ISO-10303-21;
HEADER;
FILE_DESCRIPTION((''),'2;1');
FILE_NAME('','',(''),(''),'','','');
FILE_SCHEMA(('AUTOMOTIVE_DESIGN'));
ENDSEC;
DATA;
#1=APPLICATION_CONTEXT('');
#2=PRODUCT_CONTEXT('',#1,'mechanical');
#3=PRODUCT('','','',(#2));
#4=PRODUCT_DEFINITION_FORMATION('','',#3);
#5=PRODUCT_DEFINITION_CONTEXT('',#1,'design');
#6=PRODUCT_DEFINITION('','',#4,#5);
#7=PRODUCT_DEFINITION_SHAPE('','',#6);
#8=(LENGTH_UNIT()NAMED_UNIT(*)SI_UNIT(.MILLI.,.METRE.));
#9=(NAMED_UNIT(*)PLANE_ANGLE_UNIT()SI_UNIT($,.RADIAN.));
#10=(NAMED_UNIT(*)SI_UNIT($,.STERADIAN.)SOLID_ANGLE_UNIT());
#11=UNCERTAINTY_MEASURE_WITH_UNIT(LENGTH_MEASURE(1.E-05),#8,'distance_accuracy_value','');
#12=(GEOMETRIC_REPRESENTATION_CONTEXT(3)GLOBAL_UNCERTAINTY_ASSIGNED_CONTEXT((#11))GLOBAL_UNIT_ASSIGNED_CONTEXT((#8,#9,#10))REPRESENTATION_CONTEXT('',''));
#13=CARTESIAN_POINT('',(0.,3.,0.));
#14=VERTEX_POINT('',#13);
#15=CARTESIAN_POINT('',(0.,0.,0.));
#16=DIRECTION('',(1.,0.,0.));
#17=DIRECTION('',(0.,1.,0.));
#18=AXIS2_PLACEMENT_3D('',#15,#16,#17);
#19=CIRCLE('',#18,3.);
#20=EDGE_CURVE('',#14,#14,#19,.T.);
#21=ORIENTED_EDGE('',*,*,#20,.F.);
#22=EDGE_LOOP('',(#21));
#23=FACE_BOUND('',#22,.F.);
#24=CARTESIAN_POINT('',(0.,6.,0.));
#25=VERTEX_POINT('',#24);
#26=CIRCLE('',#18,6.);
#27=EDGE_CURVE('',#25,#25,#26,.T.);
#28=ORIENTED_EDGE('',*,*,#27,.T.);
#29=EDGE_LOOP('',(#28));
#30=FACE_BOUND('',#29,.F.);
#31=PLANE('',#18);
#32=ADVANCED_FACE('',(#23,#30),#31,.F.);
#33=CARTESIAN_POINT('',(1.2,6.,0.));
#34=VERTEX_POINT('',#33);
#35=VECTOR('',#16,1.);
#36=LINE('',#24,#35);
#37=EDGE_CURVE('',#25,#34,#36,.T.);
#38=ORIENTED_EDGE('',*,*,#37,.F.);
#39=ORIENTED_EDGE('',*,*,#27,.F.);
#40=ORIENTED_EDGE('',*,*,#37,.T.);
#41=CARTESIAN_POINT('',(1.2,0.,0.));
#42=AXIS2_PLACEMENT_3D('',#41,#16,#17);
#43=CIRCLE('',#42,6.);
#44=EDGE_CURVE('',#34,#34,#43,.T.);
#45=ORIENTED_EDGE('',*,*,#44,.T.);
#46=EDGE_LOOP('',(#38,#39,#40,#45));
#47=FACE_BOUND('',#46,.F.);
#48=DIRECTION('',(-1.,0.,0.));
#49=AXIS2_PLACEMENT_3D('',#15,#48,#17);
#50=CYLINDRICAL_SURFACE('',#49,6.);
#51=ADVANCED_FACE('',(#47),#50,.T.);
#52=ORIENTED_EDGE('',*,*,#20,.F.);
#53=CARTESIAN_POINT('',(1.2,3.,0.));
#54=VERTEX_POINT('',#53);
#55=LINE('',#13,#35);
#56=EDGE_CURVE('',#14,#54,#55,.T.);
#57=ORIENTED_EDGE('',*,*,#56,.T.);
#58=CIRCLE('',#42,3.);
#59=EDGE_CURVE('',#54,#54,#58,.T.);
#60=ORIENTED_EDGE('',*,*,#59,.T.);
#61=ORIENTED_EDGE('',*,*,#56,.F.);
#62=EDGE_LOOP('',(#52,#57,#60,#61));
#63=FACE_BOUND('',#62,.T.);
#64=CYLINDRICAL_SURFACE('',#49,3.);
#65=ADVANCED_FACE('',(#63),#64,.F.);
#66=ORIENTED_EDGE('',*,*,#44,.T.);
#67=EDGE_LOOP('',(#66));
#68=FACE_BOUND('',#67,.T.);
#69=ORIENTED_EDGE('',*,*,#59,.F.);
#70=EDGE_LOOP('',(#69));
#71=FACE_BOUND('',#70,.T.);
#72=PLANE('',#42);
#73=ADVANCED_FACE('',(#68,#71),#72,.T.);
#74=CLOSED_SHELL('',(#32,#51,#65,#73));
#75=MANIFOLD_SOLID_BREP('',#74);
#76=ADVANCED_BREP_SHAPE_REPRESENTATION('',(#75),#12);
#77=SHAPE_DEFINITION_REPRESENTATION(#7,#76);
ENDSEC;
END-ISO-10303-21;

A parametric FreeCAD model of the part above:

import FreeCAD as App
import Part
import Sketcher
from FreeCAD import Vector
Q = App.Units.Quantity

doc = App.newDocument("Part")
body = doc.addObject("PartDesign::Body", "Body")

# Sketch on YZ plane
sketch1 = doc.addObject("Sketcher::SketchObject", "Sketch")
body.addObject(sketch1)
sketch1.AttachmentSupport = (doc.YZ_Plane, [""])
sketch1.MapMode = "FlatFace"
sketch1.addGeometry([
    Part.Circle(Vector(0, 0, 0), Vector(0, 0, 1), 6),
    Part.Circle(Vector(0, 0, 0), Vector(0, 0, 1), 3),
], False)
sketch1.addConstraint([
    Sketcher.Constraint("Coincident", 0, 3, -1, 1),
    Sketcher.Constraint("Coincident", 1, 3, -1, 1),
    Sketcher.Constraint("Diameter", 0, Q("12 mm")),
    Sketcher.Constraint("Diameter", 1, Q("6 mm")),
])
pad1 = doc.addObject("PartDesign::Pad", "Pad")
body.addObject(pad1)
pad1.Profile = sketch1
pad1.Length = 1.2

doc.recompute()
